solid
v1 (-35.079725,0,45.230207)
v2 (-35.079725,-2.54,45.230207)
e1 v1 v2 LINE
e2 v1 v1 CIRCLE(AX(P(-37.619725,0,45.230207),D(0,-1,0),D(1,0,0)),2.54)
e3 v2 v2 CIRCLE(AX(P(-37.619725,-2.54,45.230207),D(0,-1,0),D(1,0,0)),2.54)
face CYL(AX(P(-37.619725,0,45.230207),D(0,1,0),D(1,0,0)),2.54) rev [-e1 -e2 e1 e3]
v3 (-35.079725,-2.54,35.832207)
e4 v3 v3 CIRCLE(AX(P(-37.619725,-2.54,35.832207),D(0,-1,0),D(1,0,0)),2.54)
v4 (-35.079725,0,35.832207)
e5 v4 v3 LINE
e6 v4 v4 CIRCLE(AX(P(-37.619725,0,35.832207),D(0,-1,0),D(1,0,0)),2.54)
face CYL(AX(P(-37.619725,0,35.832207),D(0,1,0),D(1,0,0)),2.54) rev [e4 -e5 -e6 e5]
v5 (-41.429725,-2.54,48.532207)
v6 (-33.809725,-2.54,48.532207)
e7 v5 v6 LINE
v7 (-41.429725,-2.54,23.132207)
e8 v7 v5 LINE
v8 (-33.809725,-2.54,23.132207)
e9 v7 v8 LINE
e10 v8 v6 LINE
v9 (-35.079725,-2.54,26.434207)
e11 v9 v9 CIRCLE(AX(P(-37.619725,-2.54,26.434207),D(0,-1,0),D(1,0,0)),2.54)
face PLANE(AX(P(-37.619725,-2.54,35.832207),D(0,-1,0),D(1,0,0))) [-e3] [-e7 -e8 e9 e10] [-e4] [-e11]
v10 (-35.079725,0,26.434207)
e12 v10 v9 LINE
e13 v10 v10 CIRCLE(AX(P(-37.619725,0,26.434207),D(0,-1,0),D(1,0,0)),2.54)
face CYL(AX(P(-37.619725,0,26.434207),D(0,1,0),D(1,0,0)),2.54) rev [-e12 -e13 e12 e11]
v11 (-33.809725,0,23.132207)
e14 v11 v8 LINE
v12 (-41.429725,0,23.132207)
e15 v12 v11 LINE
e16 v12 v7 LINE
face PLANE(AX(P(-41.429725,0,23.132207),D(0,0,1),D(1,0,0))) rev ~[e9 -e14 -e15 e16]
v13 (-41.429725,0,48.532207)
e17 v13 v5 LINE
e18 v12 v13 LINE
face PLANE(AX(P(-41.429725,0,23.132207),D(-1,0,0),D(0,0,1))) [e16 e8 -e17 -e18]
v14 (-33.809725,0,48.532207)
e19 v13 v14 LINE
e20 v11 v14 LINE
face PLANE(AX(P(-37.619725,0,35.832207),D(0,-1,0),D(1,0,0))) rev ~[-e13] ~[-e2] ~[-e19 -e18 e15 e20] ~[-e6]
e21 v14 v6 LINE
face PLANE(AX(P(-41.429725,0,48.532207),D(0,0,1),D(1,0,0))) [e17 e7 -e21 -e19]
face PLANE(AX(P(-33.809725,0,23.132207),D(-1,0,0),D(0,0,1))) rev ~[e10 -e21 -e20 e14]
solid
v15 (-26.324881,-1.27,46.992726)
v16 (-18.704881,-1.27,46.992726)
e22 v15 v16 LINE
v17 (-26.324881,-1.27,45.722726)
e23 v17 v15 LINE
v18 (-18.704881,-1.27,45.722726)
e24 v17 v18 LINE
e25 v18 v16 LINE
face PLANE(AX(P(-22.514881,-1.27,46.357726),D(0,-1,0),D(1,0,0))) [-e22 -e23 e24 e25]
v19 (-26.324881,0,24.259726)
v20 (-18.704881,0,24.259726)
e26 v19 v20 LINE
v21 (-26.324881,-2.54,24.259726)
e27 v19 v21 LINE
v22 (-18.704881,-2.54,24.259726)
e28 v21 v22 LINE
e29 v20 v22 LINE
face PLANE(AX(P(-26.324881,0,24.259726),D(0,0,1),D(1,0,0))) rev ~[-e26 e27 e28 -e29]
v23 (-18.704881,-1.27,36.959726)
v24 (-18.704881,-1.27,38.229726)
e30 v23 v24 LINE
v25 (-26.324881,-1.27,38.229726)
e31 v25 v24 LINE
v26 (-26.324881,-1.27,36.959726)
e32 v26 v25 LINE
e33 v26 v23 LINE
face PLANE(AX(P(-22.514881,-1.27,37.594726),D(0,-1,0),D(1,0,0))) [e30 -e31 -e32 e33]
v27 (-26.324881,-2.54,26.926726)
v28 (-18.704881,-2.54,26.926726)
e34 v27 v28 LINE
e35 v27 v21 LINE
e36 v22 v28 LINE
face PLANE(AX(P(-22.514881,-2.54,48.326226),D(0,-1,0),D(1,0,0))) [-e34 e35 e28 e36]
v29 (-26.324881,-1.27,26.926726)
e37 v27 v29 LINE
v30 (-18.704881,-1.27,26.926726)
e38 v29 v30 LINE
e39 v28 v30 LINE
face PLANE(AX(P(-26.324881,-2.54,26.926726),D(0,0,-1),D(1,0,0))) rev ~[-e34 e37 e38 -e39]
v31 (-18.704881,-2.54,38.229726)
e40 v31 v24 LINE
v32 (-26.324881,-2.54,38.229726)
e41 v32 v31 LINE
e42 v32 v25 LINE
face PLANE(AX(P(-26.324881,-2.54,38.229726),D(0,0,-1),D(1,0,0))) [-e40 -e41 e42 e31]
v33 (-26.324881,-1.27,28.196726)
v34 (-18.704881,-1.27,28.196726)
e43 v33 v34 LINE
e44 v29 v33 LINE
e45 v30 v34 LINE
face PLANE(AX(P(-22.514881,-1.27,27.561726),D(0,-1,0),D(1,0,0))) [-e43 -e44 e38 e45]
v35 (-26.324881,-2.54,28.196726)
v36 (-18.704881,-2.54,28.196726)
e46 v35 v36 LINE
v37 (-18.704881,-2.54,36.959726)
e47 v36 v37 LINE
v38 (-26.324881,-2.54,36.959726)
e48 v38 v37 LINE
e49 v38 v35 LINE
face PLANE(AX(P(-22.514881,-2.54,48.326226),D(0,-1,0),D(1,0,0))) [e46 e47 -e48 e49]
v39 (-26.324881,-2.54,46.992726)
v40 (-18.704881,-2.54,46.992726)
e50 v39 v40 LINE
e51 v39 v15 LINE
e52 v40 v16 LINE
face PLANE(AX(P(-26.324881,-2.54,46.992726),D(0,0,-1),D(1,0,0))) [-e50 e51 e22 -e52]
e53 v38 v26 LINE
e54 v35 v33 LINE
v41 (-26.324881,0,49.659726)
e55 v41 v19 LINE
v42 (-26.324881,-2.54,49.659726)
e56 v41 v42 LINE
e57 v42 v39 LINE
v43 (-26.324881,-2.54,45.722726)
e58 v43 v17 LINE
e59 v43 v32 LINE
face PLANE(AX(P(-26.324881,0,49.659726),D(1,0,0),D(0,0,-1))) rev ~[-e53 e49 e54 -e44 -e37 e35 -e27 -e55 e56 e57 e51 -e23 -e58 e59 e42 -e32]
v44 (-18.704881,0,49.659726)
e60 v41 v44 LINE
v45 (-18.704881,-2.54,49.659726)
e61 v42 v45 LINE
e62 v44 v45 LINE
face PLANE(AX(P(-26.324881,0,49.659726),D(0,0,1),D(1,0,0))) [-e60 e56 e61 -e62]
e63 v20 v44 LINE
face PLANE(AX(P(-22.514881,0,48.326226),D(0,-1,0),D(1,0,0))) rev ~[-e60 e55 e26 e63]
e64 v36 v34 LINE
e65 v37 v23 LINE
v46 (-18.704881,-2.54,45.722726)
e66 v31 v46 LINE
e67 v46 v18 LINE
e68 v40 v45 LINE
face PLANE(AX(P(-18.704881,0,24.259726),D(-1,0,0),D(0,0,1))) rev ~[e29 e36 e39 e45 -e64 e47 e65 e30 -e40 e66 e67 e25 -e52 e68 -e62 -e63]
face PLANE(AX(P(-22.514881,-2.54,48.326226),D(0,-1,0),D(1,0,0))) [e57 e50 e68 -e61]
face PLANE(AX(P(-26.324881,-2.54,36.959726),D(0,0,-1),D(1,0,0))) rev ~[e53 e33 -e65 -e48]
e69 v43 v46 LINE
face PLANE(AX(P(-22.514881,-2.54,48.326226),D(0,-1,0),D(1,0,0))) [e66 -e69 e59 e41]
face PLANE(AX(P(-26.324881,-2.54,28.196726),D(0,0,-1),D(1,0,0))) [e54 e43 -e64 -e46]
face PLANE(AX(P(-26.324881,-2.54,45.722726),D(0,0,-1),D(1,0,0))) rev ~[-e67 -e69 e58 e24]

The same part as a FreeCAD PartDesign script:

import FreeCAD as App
import Part
import Sketcher
Q = App.Units.Quantity

doc = App.newDocument("Part")
body = doc.addObject("PartDesign::Body", "Body")

sketch1 = body.newObject("Sketcher::SketchObject", "Sketch")
sketch1.AttachmentSupport = (doc.getObject("XZ_Plane"), [""])
sketch1.MapMode = "FlatFace"
sketch1.addGeometry(Part.LineSegment(App.Vector(-41.429725, 48.532207, 0), App.Vector(-41.429725, 23.132207, 0)), False)
sketch1.addGeometry(Part.LineSegment(App.Vector(-41.429725, 23.132207, 0), App.Vector(-33.809725, 23.132207, 0)), False)
sketch1.addGeometry(Part.LineSegment(App.Vector(-33.809725, 23.132207, 0), App.Vector(-33.809725, 48.532207, 0)), False)
sketch1.addGeometry(Part.LineSegment(App.Vector(-33.809725, 48.532207, 0), App.Vector(-41.429725, 48.532207, 0)), False)
sketch1.addGeometry(Part.Circle(App.Vector(-37.619725, 26.434207, 0), App.Vector(0, 0, 1), 2.54), False)
sketch1.addGeometry(Part.Circle(App.Vector(-37.619725, 35.832207, 0), App.Vector(0, 0, 1), 2.54), False)
sketch1.addGeometry(Part.Circle(App.Vector(-37.619725, 45.230207, 0), App.Vector(0, 0, 1), 2.54), False)
sketch1.addConstraint(Sketcher.Constraint("Coincident", 0, 2, 1, 1))
sketch1.addConstraint(Sketcher.Constraint("Coincident", 1, 2, 2, 1))
sketch1.addConstraint(Sketcher.Constraint("Coincident", 2, 2, 3, 1))
sketch1.addConstraint(Sketcher.Constraint("Coincident", 3, 2, 0, 1))
sketch1.addConstraint(Sketcher.Constraint("Vertical", 0))
sketch1.addConstraint(Sketcher.Constraint("Horizontal", 1))
sketch1.addConstraint(Sketcher.Constraint("Vertical", 2))
sketch1.addConstraint(Sketcher.Constraint("Horizontal", 3))
sketch1.addConstraint(Sketcher.Constraint("Equal", 4, 5))
sketch1.addConstraint(Sketcher.Constraint("Equal", 5, 6))
sketch1.addConstraint(Sketcher.Constraint("Vertical", 4, 3, 5, 3))
sketch1.addConstraint(Sketcher.Constraint("Vertical", 5, 3, 6, 3))
sketch1.addConstraint(Sketcher.Constraint("Diameter", 4, Q("0.2 in")))
sketch1.addConstraint(Sketcher.Constraint("DistanceY", 0, 2, 0, 1, Q("1 in")))
sketch1.addConstraint(Sketcher.Constraint("DistanceX", 1, 1, 1, 2, Q("0.3 in")))
sketch1.addConstraint(Sketcher.Constraint("DistanceY", 0, 2, 5, 3, Q("0.5 in")))
sketch1.addConstraint(Sketcher.Constraint("DistanceY", 4, 3, 5, 3, Q("0.37 in")))
sketch1.addConstraint(Sketcher.Constraint("DistanceY", 5, 3, 6, 3, Q("0.37 in")))
sketch1.addConstraint(Sketcher.Constraint("DistanceX", 0, 2, 4, 3, Q("0.15 in")))
sketch1.addConstraint(Sketcher.Constraint("DistanceX", 4, 3, -1, 1, 37.619725))
sketch1.addConstraint(Sketcher.Constraint("DistanceY", -1, 1, 4, 3, 26.434207))
pad1 = body.newObject("PartDesign::Pad", "Pad")
pad1.Profile = sketch1
pad1.Length = Q("0.1 in")
body2 = doc.addObject("PartDesign::Body", "Body001")

sketch2 = body2.newObject("Sketcher::SketchObject", "Sketch001")
sketch2.AttachmentSupport = (doc.getObject("XZ_Plane001"), [""])
sketch2.MapMode = "FlatFace"
sketch2.addGeometry(Part.LineSegment(App.Vector(-26.324881, 49.659726, 0), App.Vector(-26.324881, 24.259726, 0)), False)
sketch2.addGeometry(Part.LineSegment(App.Vector(-26.324881, 24.259726, 0), App.Vector(-18.704881, 24.259726, 0)), False)
sketch2.addGeometry(Part.LineSegment(App.Vector(-18.704881, 24.259726, 0), App.Vector(-18.704881, 49.659726, 0)), False)
sketch2.addGeometry(Part.LineSegment(App.Vector(-18.704881, 49.659726, 0), App.Vector(-26.324881, 49.659726, 0)), False)
sketch2.addConstraint(Sketcher.Constraint("Coincident", 0, 2, 1, 1))
sketch2.addConstraint(Sketcher.Constraint("Coincident", 1, 2, 2, 1))
sketch2.addConstraint(Sketcher.Constraint("Coincident", 2, 2, 3, 1))
sketch2.addConstraint(Sketcher.Constraint("Coincident", 3, 2, 0, 1))
sketch2.addConstraint(Sketcher.Constraint("Vertical", 0))
sketch2.addConstraint(Sketcher.Constraint("Horizontal", 1))
sketch2.addConstraint(Sketcher.Constraint("Vertical", 2))
sketch2.addConstraint(Sketcher.Constraint("Horizontal", 3))
sketch2.addConstraint(Sketcher.Constraint("DistanceY", 0, 2, 0, 1, Q("1 in")))
sketch2.addConstraint(Sketcher.Constraint("DistanceX", 1, 1, 1, 2, Q("0.3 in")))
sketch2.addConstraint(Sketcher.Constraint("DistanceX", 0, 2, -1, 1, 26.324881))
sketch2.addConstraint(Sketcher.Constraint("DistanceY", -1, 1, 0, 2, 24.259726))
pad2 = body2.newObject("PartDesign::Pad", "Pad001")
pad2.Profile = sketch2
pad2.Length = Q("0.1 in")

sketch3 = body2.newObject("Sketcher::SketchObject", "Sketch002")
sketch3.AttachmentSupport = (doc.getObject("XZ_Plane001"), [""])
sketch3.MapMode = "FlatFace"
sketch3.AttachmentOffset = App.Placement(App.Vector(0, 0, 0.1 * 25.4), App.Rotation())
sketch3.addGeometry(Part.LineSegment(App.Vector(-26.324881, 46.992726, 0), App.Vector(-26.324881, 45.722726, 0)), False)
sketch3.addGeometry(Part.LineSegment(App.Vector(-26.324881, 45.722726, 0), App.Vector(-18.704881, 45.722726, 0)), False)
sketch3.addGeometry(Part.LineSegment(App.Vector(-18.704881, 45.722726, 0), App.Vector(-18.704881, 46.992726, 0)), False)
sketch3.addGeometry(Part.LineSegment(App.Vector(-18.704881, 46.992726, 0), App.Vector(-26.324881, 46.992726, 0)), False)
sketch3.addConstraint(Sketcher.Constraint("Coincident", 0, 2, 1, 1))
sketch3.addConstraint(Sketcher.Constraint("Coincident", 1, 2, 2, 1))
sketch3.addConstraint(Sketcher.Constraint("Coincident", 2, 2, 3, 1))
sketch3.addConstraint(Sketcher.Constraint("Coincident", 3, 2, 0, 1))
sketch3.addConstraint(Sketcher.Constraint("Vertical", 0))
sketch3.addConstraint(Sketcher.Constraint("Horizontal", 1))
sketch3.addConstraint(Sketcher.Constraint("Vertical", 2))
sketch3.addConstraint(Sketcher.Constraint("Horizontal", 3))
sketch3.addConstraint(Sketcher.Constraint("DistanceX", 1, 1, 1, 2, Q("0.3 in")))
sketch3.addConstraint(Sketcher.Constraint("DistanceY", 0, 2, 0, 1, Q("0.05 in")))
sketch3.addConstraint(Sketcher.Constraint("DistanceX", 0, 2, -1, 1, 26.324881))
sketch3.addConstraint(Sketcher.Constraint("DistanceY", -1, 1, 0, 2, 45.722726))
pocket1 = body2.newObject("PartDesign::Pocket", "Pocket")
pocket1.Profile = sketch3
pocket1.Length = Q("0.05 in")

sketch4 = body2.newObject("Sketcher::SketchObject", "Sketch003")
sketch4.AttachmentSupport = (doc.getObject("XZ_Plane001"), [""])
sketch4.MapMode = "FlatFace"
sketch4.AttachmentOffset = App.Placement(App.Vector(0, 0, 0.1 * 25.4), App.Rotation())
sketch4.addGeometry(Part.LineSegment(App.Vector(-26.324881, 38.229726, 0), App.Vector(-26.324881, 36.959726, 0)), False)
sketch4.addGeometry(Part.LineSegment(App.Vector(-26.324881, 36.959726, 0), App.Vector(-18.704881, 36.959726, 0)), False)
sketch4.addGeometry(Part.LineSegment(App.Vector(-18.704881, 36.959726, 0), App.Vector(-18.704881, 38.229726, 0)), False)
sketch4.addGeometry(Part.LineSegment(App.Vector(-18.704881, 38.229726, 0), App.Vector(-26.324881, 38.229726, 0)), False)
sketch4.addConstraint(Sketcher.Constraint("Coincident", 0, 2, 1, 1))
sketch4.addConstraint(Sketcher.Constraint("Coincident", 1, 2, 2, 1))
sketch4.addConstraint(Sketcher.Constraint("Coincident", 2, 2, 3, 1))
sketch4.addConstraint(Sketcher.Constraint("Coincident", 3, 2, 0, 1))
sketch4.addConstraint(Sketcher.Constraint("Vertical", 0))
sketch4.addConstraint(Sketcher.Constraint("Horizontal", 1))
sketch4.addConstraint(Sketcher.Constraint("Vertical", 2))
sketch4.addConstraint(Sketcher.Constraint("Horizontal", 3))
sketch4.addConstraint(Sketcher.Constraint("DistanceX", 1, 1, 1, 2, Q("0.3 in")))
sketch4.addConstraint(Sketcher.Constraint("DistanceY", 0, 2, 0, 1, Q("0.05 in")))
sketch4.addConstraint(Sketcher.Constraint("DistanceX", 0, 2, -1, 1, 26.324881))
sketch4.addConstraint(Sketcher.Constraint("DistanceY", -1, 1, 0, 2, 36.959726))
pocket2 = body2.newObject("PartDesign::Pocket", "Pocket001")
pocket2.Profile = sketch4
pocket2.Length = Q("0.05 in")

sketch5 = body2.newObject("Sketcher::SketchObject", "Sketch004")
sketch5.AttachmentSupport = (doc.getObject("XZ_Plane001"), [""])
sketch5.MapMode = "FlatFace"
sketch5.AttachmentOffset = App.Placement(App.Vector(0, 0, 0.1 * 25.4), App.Rotation())
sketch5.addGeometry(Part.LineSegment(App.Vector(-26.324881, 28.196726, 0), App.Vector(-26.324881, 26.926726, 0)), False)
sketch5.addGeometry(Part.LineSegment(App.Vector(-26.324881, 26.926726, 0), App.Vector(-18.704881, 26.926726, 0)), False)
sketch5.addGeometry(Part.LineSegment(App.Vector(-18.704881, 26.926726, 0), App.Vector(-18.704881, 28.196726, 0)), False)
sketch5.addGeometry(Part.LineSegment(App.Vector(-18.704881, 28.196726, 0), App.Vector(-26.324881, 28.196726, 0)), False)
sketch5.addConstraint(Sketcher.Constraint("Coincident", 0, 2, 1, 1))
sketch5.addConstraint(Sketcher.Constraint("Coincident", 1, 2, 2, 1))
sketch5.addConstraint(Sketcher.Constraint("Coincident", 2, 2, 3, 1))
sketch5.addConstraint(Sketcher.Constraint("Coincident", 3, 2, 0, 1))
sketch5.addConstraint(Sketcher.Constraint("Vertical", 0))
sketch5.addConstraint(Sketcher.Constraint("Horizontal", 1))
sketch5.addConstraint(Sketcher.Constraint("Vertical", 2))
sketch5.addConstraint(Sketcher.Constraint("Horizontal", 3))
sketch5.addConstraint(Sketcher.Constraint("DistanceX", 1, 1, 1, 2, Q("0.3 in")))
sketch5.addConstraint(Sketcher.Constraint("DistanceY", 0, 2, 0, 1, Q("0.05 in")))
sketch5.addConstraint(Sketcher.Constraint("DistanceX", 0, 2, -1, 1, 26.324881))
sketch5.addConstraint(Sketcher.Constraint("DistanceY", -1, 1, 0, 2, 26.926726))
pocket3 = body2.newObject("PartDesign::Pocket", "Pocket002")
pocket3.Profile = sketch5
pocket3.Length = Q("0.05 in")

doc.recompute()
